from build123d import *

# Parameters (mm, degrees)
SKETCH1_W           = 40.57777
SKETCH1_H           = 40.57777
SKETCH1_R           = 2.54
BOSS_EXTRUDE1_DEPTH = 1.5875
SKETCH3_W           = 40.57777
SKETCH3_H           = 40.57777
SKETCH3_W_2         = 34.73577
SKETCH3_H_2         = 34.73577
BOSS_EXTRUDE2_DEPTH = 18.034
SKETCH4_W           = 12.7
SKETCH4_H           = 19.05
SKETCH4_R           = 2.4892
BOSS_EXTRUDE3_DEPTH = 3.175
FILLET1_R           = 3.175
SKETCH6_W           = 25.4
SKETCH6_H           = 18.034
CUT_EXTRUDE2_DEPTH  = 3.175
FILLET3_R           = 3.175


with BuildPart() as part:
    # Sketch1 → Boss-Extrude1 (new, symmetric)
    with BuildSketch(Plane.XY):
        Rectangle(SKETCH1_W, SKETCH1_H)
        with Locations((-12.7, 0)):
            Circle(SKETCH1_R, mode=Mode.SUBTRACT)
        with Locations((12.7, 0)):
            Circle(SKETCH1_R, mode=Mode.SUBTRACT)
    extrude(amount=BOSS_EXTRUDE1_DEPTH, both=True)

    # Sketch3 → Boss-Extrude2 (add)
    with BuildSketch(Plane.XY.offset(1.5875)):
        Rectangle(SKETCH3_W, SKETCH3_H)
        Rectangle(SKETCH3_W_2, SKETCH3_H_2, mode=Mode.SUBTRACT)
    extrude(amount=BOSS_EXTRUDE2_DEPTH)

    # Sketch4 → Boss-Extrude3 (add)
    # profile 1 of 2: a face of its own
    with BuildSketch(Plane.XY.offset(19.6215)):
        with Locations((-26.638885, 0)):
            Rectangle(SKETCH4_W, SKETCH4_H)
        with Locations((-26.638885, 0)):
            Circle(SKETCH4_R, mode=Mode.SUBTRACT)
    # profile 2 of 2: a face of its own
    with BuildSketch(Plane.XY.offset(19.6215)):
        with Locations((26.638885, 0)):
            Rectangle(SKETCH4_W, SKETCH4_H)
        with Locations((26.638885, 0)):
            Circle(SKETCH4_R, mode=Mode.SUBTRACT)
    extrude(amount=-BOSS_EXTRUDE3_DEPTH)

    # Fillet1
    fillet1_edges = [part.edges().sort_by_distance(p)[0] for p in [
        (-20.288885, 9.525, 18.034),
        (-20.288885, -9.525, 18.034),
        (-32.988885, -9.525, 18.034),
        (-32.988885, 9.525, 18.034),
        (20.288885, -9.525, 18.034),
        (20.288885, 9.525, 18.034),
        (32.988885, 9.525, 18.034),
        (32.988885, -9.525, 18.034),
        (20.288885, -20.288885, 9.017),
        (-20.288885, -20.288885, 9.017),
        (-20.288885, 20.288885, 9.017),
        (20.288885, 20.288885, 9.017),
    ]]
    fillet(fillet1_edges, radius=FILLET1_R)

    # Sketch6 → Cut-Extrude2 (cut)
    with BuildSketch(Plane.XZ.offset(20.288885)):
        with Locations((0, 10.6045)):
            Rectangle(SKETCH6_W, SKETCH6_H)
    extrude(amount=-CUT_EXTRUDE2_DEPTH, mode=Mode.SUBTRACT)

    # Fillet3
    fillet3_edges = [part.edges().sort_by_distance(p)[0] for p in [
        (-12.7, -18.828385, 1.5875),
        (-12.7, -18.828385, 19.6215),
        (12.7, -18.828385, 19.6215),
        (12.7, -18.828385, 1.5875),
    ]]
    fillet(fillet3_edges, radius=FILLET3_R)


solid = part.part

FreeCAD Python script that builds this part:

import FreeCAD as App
import Part
import Sketcher

V = App.Vector
Q = App.Units.Quantity


def edges_at(feature, points):
    """Names of the edges that pass closest to the given points."""
    edges = feature.Shape.Edges
    near = lambda p: min(range(len(edges)), key=lambda i: edges[i].distToShape(Part.Vertex(*p))[0])
    return sorted({f"Edge{near(p) + 1}" for p in points})


def add_polygon(sketch, points):
    """Adds a closed chain of lines whose ends are joined by coincident constraints."""
    first, n = sketch.GeometryCount, len(points)
    for a, b in zip(points, points[1:] + points[:1]):
        sketch.addGeometry(Part.LineSegment(App.Vector(*a, 0), App.Vector(*b, 0)), False)
    for i in range(n):
        sketch.addConstraint(Sketcher.Constraint("Coincident", first + i, 2, first + (i + 1) % n, 1))

doc = App.newDocument("Part")
params = doc.addObject("Spreadsheet::Sheet", "Params")
for row, (alias, value) in enumerate([
    ("sketch1_diameter", "0.2 in"),
    ("pad1_length", "0.125 in"),
    ("pad2_length", "0.71 in"),
    ("sketch3_diameter", "0.196 in"),
    ("sketch3_width", "0.5 in"),
    ("sketch3_height", "0.75 in"),
    ("pad3_length", "0.125 in"),
    ("fillet_radius", "0.125 in"),
    ("sketch4_width", "1 in"),
    ("sketch4_height", "0.71 in"),
    ("pocket1_length", "0.125 in"),
    ("fillet2_radius", "0.125 in"),
], start=1):
    params.set(f"A{row}", alias)
    params.set(f"B{row}", "=" + value)
    params.setAlias(f"B{row}", alias)

body = doc.addObject("PartDesign::Body", "Body")

# Sketch on XY plane
sketch1 = body.newObject("Sketcher::SketchObject", "Sketch")
sketch1.AttachmentSupport = (doc.getObject("XY_Plane"), [""])
sketch1.MapMode = "FlatFace"
add_polygon(sketch1, [(-20.3, 20.3), (-20.3, -20.3), (20.3, -20.3), (20.3, 20.3)])  # lines 0-3
sketch1.addGeometry(Part.Circle(V(-12.7, 0, 0), V(0, 0, 1), 2.5), False)  # 4
sketch1.addGeometry(Part.Circle(V(12.7, 0, 0), V(0, 0, 1), 2.5), False)  # 5
sketch1.addConstraint([
    Sketcher.Constraint("Vertical", 0),
    Sketcher.Constraint("Horizontal", 1),
    Sketcher.Constraint("Vertical", 2),
    Sketcher.Constraint("Horizontal", 3),
    Sketcher.Constraint("Equal", 4, 5),
    Sketcher.Constraint("Symmetric", 4, 3, 5, 3, -1, 1),
    Sketcher.Constraint("Symmetric", 0, 2, 2, 2, -1, 1),
    Sketcher.Constraint("PointOnObject", 4, 3, -1),
    Sketcher.Constraint("Equal", 3, 0),
    Sketcher.Constraint("Diameter", 4, Q("0.2 in")),
    Sketcher.Constraint("DistanceX", 4, 3, 5, 3, Q("1 in")),
    Sketcher.Constraint("DistanceX", 1, 1, 1, 2, 40.57777),
])
sketch1.setExpression("Constraints[13]", "Params.sketch1_diameter")
pad1 = body.newObject("PartDesign::Pad", "Pad")
pad1.Profile = sketch1
pad1.setExpression("Length", "Params.pad1_length")
pad1.Midplane = True

# Sketch on XY plane
sketch2 = body.newObject("Sketcher::SketchObject", "Sketch001")
sketch2.AttachmentSupport = (doc.getObject("XY_Plane"), [""])
sketch2.MapMode = "FlatFace"
sketch2.AttachmentOffset = App.Placement(V(0, 0, 0.0625 * 25.4), App.Rotation())
add_polygon(sketch2, [(-20, 20), (-20, -20), (20, -20), (20, 20)])  # lines 0-3
add_polygon(sketch2, [(17, -17), (-17, -17), (-17, 17), (17, 17)])  # lines 4-7
sketch2.addConstraint([
    Sketcher.Constraint("Vertical", 0),
    Sketcher.Constraint("Horizontal", 1),
    Sketcher.Constraint("Vertical", 2),
    Sketcher.Constraint("Horizontal", 3),
    Sketcher.Constraint("Horizontal", 4),
    Sketcher.Constraint("Vertical", 5),
    Sketcher.Constraint("Horizontal", 6),
    Sketcher.Constraint("Vertical", 7),
    Sketcher.Constraint("Symmetric", 0, 2, 2, 2, -1, 1),
    Sketcher.Constraint("Symmetric", 4, 2, 6, 2, -1, 1),
    Sketcher.Constraint("Equal", 3, 0),
    Sketcher.Constraint("Equal", 6, 5),
    Sketcher.Constraint("DistanceX", 0, 2, 4, 2, Q("0.115 in")),
    Sketcher.Constraint("DistanceX", 1, 1, 1, 2, 40.57777),
])
pad2 = body.newObject("PartDesign::Pad", "Pad001")
pad2.Profile = sketch2
pad2.setExpression("Length", "Params.pad2_length")

# Sketch on XY plane
sketch3 = body.newObject("Sketcher::SketchObject", "Sketch002")
sketch3.AttachmentSupport = (doc.getObject("XY_Plane"), [""])
sketch3.MapMode = "FlatFace"
sketch3.AttachmentOffset = App.Placement(V(0, 0, 0.7725 * 25.4), App.Rotation())
add_polygon(sketch3, [(-33, 9.5), (-33, -9.5), (-20.3, -9.5), (-20.3, 9.5)])  # lines 0-3
sketch3.addGeometry(Part.Circle(V(-26.6, 0, 0), V(0, 0, 1), 2.5), False)  # 4
add_polygon(sketch3, [(20.3, 9.5), (20.3, -9.5), (33, -9.5), (33, 9.5)])  # lines 5-8
sketch3.addGeometry(Part.Circle(V(26.6, 0, 0), V(0, 0, 1), 2.5), False)  # 9
sketch3.addConstraint([
    Sketcher.Constraint("Vertical", 0),
    Sketcher.Constraint("Horizontal", 1),
    Sketcher.Constraint("Vertical", 2),
    Sketcher.Constraint("Horizontal", 3),
    Sketcher.Constraint("Vertical", 5),
    Sketcher.Constraint("Horizontal", 6),
    Sketcher.Constraint("Vertical", 7),
    Sketcher.Constraint("Horizontal", 8),
    Sketcher.Constraint("Equal", 4, 9),
    Sketcher.Constraint("Symmetric", 4, 3, 9, 3, -1, 1),
    Sketcher.Constraint("Symmetric", 2, 2, 5, 2, -1, 1),
    Sketcher.Constraint("Symmetric", 0, 2, 7, 2, -1, 1),
    Sketcher.Constraint("PointOnObject", 4, 3, -1),
    Sketcher.Constraint("Horizontal", 1, 2, 5, 2),
    Sketcher.Constraint("Diameter", 4, Q("0.196 in")),
    Sketcher.Constraint("DistanceX", 1, 1, 1, 2, Q("0.5 in")),
    Sketcher.Constraint("DistanceY", 0, 2, 0, 1, Q("0.75 in")),
    Sketcher.Constraint("DistanceX", 0, 2, 4, 3, Q("0.25 in")),
    Sketcher.Constraint("DistanceX", 4, 3, 9, 3, 53.27777),
])
sketch3.setExpression("Constraints[22]", "Params.sketch3_diameter")
sketch3.setExpression("Constraints[23]", "Params.sketch3_width")
sketch3.setExpression("Constraints[24]", "Params.sketch3_height")
pad3 = body.newObject("PartDesign::Pad", "Pad002")
pad3.Profile = sketch3
pad3.setExpression("Length", "Params.pad3_length")
pad3.Reversed = True
doc.recompute()

fillet = body.newObject("PartDesign::Fillet", "Fillet")
fillet.Base = (pad3, edges_at(pad3, [
    (-20.289, 9.525, 18.034),
    (-20.289, -9.525, 18.034),
    (-32.989, -9.525, 18.034),
    (-32.989, 9.525, 18.034),
    (20.289, -9.525, 18.034),
    (20.289, 9.525, 18.034),
    (32.989, 9.525, 18.034),
    (32.989, -9.525, 18.034),
    (20.289, -20.289, 9.017),
    (-20.289, -20.289, 9.017),
    (-20.289, 20.289, 9.017),
    (20.289, 20.289, 9.017),
]))
fillet.setExpression("Radius", "Params.fillet_radius")

# Sketch on XZ plane
sketch4 = body.newObject("Sketcher::SketchObject", "Sketch003")
sketch4.AttachmentSupport = (doc.getObject("XZ_Plane"), [""])
sketch4.MapMode = "FlatFace"
sketch4.AttachmentOffset = App.Placement(V(0, 0, 20.288885), App.Rotation())
add_polygon(sketch4, [(-13, 20), (-13, 2), (13, 2), (13, 20)])  # lines 0-3
sketch4.addConstraint([
    Sketcher.Constraint("Vertical", 0),
    Sketcher.Constraint("Horizontal", 1),
    Sketcher.Constraint("Vertical", 2),
    Sketcher.Constraint("Horizontal", 3),
    Sketcher.Constraint("DistanceX", 1, 1, 1, 2, Q("1 in")),
    Sketcher.Constraint("DistanceY", 0, 2, 0, 1, Q("0.71 in")),
    Sketcher.Constraint("DistanceX", 0, 2, -1, 1, Q("0.5 in")),
    Sketcher.Constraint("DistanceY", -1, 1, 0, 2, Q("0.0625 in")),
])
sketch4.setExpression("Constraints[8]", "Params.sketch4_width")
sketch4.setExpression("Constraints[9]", "Params.sketch4_height")
pocket1 = body.newObject("PartDesign::Pocket", "Pocket")
pocket1.Profile = sketch4
pocket1.setExpression("Length", "Params.pocket1_length")
doc.recompute()

fillet2 = body.newObject("PartDesign::Fillet", "Fillet001")
fillet2.Base = (pocket1, edges_at(pocket1, [
    (-12.7, -18.828, 1.587),
    (-12.7, -18.828, 19.622),
    (12.7, -18.828, 19.622),
    (12.7, -18.828, 1.587),
]))
fillet2.setExpression("Radius", "Params.fillet2_radius")

doc.recompute()
